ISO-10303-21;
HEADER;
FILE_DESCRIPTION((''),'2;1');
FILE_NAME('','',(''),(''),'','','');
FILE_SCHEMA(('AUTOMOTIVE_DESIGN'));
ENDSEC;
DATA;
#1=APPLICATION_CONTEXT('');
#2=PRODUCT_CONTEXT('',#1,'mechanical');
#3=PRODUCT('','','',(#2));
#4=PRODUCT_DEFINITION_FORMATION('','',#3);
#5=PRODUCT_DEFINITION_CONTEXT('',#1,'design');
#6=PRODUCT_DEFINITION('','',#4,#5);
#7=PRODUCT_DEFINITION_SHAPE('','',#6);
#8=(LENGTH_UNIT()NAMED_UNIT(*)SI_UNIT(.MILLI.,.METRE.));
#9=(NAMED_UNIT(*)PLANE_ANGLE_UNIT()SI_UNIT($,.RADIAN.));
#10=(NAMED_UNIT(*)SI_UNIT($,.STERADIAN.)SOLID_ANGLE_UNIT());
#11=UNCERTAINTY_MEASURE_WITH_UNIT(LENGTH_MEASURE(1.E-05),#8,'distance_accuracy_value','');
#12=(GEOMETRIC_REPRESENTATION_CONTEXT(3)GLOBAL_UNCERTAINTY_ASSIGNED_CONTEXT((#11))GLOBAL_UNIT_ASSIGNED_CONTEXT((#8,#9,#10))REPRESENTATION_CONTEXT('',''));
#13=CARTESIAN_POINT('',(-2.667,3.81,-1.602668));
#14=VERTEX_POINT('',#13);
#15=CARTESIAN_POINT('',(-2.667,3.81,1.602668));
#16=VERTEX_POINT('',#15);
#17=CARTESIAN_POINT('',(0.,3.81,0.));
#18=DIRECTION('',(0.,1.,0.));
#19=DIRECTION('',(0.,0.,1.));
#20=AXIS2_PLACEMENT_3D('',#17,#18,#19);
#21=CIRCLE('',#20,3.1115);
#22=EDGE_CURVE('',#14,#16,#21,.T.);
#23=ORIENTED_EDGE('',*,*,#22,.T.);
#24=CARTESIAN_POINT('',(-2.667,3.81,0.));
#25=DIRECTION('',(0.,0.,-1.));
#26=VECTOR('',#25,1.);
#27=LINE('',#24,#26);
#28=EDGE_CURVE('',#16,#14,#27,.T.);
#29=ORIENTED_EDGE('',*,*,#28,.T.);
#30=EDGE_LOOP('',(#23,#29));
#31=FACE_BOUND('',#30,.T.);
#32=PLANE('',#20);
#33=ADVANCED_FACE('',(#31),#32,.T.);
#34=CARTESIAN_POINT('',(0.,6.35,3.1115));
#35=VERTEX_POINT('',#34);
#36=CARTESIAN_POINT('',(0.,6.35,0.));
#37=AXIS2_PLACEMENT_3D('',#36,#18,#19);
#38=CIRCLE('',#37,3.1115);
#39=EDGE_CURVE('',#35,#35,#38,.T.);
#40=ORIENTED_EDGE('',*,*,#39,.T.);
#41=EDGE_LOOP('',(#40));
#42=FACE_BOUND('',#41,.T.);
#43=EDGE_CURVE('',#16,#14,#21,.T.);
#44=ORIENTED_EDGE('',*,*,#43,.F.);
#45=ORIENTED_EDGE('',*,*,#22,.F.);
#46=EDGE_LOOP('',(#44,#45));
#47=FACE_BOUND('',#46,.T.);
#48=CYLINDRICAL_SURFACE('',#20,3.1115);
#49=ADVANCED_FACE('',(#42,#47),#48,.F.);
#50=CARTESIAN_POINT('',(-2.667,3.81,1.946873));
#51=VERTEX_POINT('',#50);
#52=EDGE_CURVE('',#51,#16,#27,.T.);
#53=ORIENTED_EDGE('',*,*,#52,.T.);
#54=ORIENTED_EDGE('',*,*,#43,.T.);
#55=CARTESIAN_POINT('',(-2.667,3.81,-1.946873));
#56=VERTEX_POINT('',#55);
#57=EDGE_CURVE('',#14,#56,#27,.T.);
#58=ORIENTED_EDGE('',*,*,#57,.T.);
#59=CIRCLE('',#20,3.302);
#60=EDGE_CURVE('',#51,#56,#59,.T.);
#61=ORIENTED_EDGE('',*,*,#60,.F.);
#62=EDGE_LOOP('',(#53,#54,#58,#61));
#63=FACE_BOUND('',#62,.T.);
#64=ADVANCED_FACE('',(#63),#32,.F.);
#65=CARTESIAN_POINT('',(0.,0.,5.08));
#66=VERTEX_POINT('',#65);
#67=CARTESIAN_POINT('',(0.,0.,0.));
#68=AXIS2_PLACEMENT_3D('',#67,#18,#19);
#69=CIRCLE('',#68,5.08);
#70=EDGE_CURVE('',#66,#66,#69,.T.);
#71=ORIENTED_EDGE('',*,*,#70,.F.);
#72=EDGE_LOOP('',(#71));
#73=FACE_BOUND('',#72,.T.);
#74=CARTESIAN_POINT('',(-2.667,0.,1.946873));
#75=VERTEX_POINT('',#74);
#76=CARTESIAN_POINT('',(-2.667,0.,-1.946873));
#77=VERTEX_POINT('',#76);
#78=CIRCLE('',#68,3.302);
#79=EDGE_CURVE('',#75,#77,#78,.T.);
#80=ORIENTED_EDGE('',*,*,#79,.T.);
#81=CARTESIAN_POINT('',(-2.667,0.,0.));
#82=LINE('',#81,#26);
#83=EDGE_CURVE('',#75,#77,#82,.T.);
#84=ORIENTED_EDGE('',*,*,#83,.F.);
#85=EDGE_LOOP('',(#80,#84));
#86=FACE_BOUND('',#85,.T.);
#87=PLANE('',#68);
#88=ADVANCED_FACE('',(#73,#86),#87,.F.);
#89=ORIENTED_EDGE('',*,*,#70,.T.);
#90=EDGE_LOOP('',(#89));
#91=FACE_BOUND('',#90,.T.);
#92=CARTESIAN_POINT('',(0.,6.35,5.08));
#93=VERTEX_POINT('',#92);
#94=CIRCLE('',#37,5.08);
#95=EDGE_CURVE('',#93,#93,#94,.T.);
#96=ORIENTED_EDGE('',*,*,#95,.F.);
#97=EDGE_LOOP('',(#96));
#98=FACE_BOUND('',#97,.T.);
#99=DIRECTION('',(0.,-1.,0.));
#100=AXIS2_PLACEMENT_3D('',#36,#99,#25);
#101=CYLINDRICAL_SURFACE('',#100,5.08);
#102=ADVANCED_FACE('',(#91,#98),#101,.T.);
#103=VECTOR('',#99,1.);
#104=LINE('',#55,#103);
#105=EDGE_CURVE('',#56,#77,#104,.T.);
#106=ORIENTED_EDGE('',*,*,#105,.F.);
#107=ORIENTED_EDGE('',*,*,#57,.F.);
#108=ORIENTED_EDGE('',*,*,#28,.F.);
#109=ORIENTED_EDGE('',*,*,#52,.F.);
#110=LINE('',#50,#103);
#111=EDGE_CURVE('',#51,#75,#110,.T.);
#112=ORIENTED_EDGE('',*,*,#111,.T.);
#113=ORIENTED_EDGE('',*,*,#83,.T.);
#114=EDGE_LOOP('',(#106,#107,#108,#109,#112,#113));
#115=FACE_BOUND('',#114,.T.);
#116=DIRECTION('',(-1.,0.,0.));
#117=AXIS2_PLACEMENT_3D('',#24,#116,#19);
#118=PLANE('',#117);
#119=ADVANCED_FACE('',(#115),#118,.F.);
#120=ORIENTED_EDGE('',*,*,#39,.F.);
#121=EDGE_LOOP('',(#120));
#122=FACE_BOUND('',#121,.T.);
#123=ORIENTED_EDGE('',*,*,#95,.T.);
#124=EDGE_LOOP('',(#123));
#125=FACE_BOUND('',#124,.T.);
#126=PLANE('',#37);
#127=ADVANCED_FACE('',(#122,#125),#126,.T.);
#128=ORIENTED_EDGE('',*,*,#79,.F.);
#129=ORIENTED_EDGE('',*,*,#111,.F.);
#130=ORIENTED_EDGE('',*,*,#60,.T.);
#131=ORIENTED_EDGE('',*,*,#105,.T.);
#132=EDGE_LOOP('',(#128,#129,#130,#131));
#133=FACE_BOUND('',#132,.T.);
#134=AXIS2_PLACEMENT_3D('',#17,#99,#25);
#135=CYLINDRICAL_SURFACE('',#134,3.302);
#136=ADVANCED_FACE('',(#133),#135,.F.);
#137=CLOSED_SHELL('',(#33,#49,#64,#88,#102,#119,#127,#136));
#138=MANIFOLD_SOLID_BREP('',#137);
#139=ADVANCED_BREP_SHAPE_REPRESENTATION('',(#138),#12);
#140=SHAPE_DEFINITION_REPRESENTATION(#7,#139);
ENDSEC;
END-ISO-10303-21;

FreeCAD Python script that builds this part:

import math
import FreeCAD as App
import Part
import Sketcher
from FreeCAD import Vector
Q = App.Units.Quantity

doc = App.newDocument("Part")
body = doc.addObject("PartDesign::Body", "Body")

sketch1 = doc.addObject("Sketcher::SketchObject", "Sketch")
body.addObject(sketch1)
sketch1.AttachmentSupport = (doc.XZ_Plane, [""])
sketch1.MapMode = "FlatFace"
sketch1.addGeometry(Part.Circle(Vector(0, 0, 0), Vector(0, 0, 1), 5), False)
sketch1.addConstraint([
    Sketcher.Constraint("Coincident", 0, 3, -1, 1),
    Sketcher.Constraint("Diameter", 0, Q("0.4 in")),
])
pad1 = doc.addObject("PartDesign::Pad", "Pad")
body.addObject(pad1)
pad1.Profile = sketch1
pad1.Length = Q("0.25 in")
pad1.Reversed = True

sketch2 = doc.addObject("Sketcher::SketchObject", "Sketch001")
body.addObject(sketch2)
sketch2.AttachmentSupport = (doc.XZ_Plane, [""])
sketch2.MapMode = "FlatFace"
sketch2.addGeometry([
    Part.LineSegment(Vector(-2.7, -1.9, 0), Vector(-2.7, 1.9, 0)),
    Part.ArcOfCircle(Part.Circle(Vector(0, 0, 0), Vector(0, 0, 1), 3.3), math.radians(0), math.radians(144)),
    Part.ArcOfCircle(Part.Circle(Vector(0, 0, 0), Vector(0, 0, 1), 3.3), math.radians(-144), math.radians(0)),
], False)
sketch2.addConstraint([
    Sketcher.Constraint("Coincident", 0, 2, 1, 2),
    Sketcher.Constraint("Tangent", 1, 1, 2, 2),
    Sketcher.Constraint("Coincident", 2, 1, 0, 1),
    Sketcher.Constraint("Vertical", 0),
    Sketcher.Constraint("Coincident", 1, 3, -1, 1),
    Sketcher.Constraint("Equal", 1, 2),
    Sketcher.Constraint("PointOnObject", 1, 1, -1),
    Sketcher.Constraint("Radius", 1, Q("0.13 in")),
    Sketcher.Constraint("DistanceX", 0, 2, -1, 1, Q("0.105 in")),
])
pocket1 = doc.addObject("PartDesign::Pocket", "Pocket")
body.addObject(pocket1)
pocket1.Profile = sketch2
pocket1.Length = Q("0.15 in")

sketch3 = doc.addObject("Sketcher::SketchObject", "Sketch002")
body.addObject(sketch3)
sketch3.AttachmentSupport = (doc.XZ_Plane, [""])
sketch3.MapMode = "FlatFace"
sketch3.AttachmentOffset = App.Placement(Vector(0, 0, -0.25 * 25.4), App.Rotation())
sketch3.addGeometry(Part.Circle(Vector(0, 0, 0), Vector(0, 0, 1), 3.1), False)
sketch3.addConstraint([
    Sketcher.Constraint("Coincident", 0, 3, -1, 1),
    Sketcher.Constraint("Diameter", 0, Q("0.245 in")),
])
pocket2 = doc.addObject("PartDesign::Pocket", "Pocket001")
body.addObject(pocket2)
pocket2.Profile = sketch3
pocket2.Length = Q("0.1 in")
pocket2.Reversed = True

doc.recompute()
